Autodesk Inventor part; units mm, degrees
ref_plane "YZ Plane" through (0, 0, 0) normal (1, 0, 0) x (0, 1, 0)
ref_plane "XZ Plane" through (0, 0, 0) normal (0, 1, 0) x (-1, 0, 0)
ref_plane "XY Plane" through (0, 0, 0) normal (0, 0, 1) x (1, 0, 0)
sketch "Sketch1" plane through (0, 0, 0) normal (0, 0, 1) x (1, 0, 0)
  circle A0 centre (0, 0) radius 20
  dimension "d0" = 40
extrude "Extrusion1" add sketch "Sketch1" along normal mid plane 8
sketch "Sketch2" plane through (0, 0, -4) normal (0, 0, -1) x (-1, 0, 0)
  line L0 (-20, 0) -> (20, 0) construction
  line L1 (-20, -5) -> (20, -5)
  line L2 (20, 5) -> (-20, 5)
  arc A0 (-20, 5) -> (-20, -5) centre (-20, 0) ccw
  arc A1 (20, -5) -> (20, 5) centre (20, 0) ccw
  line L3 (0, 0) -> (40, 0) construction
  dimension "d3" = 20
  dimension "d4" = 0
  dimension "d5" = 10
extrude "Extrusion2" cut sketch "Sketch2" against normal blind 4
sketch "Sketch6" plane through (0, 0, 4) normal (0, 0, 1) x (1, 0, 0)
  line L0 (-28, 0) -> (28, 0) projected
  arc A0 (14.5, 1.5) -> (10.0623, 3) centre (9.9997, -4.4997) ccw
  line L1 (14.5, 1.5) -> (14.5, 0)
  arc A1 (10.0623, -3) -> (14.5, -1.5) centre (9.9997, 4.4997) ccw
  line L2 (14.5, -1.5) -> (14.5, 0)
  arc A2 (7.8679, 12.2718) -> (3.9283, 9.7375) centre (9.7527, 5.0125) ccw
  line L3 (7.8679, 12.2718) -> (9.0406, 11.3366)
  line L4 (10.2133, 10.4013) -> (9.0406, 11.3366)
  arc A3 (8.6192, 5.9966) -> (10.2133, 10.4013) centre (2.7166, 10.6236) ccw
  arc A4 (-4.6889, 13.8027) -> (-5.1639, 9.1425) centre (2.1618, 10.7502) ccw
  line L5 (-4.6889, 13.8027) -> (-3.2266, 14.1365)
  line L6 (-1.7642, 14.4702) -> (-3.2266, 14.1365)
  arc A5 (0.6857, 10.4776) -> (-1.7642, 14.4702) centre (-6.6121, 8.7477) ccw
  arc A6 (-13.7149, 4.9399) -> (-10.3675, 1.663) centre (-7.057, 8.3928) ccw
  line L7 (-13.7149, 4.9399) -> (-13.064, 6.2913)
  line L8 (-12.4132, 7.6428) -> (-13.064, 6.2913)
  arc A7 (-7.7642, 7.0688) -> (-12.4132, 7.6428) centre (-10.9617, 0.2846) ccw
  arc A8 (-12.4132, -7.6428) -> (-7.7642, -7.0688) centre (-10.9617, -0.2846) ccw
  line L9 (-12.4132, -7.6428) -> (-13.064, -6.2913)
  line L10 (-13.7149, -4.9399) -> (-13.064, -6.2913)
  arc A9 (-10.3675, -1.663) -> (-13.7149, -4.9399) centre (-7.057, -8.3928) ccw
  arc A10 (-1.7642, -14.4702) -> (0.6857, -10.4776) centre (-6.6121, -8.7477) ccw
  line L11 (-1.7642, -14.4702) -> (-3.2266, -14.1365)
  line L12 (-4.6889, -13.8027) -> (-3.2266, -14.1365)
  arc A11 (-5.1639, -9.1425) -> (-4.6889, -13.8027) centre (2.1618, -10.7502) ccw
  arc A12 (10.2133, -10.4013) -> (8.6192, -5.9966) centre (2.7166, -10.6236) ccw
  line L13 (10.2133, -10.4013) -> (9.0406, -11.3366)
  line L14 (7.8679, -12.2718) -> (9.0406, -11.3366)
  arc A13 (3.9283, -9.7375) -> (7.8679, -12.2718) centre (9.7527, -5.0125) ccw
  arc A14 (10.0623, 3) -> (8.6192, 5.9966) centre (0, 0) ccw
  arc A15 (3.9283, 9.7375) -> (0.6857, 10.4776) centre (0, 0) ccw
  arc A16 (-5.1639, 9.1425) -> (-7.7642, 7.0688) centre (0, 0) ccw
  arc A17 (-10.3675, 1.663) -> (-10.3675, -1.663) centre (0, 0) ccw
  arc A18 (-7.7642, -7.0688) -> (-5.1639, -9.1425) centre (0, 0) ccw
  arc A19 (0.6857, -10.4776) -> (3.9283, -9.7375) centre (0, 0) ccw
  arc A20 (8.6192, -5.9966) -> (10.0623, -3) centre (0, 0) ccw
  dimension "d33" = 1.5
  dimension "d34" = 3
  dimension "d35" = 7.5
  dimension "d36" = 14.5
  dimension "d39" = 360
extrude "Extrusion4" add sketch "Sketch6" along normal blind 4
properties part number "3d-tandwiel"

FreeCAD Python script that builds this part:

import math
import FreeCAD as App
import Part
import Sketcher
from FreeCAD import Vector
Q = App.Units.Quantity

doc = App.newDocument("Part")
params = doc.addObject("Spreadsheet::Sheet", "Params")
for row, (alias, value) in enumerate([
    ("sketch1_diameter", "40 mm"),
    ("pad1_length", "8 mm"),
    ("sketch2_radius", "5 mm"),
    ("pocket1_length", "4 mm"),
    ("sketch3_radius", "7.5 mm"),
    ("sketch3_height", "3 mm"),
    ("sketch3_length", "1.5 mm"),
    ("sketch3_radius2", "10.5 mm"),
    ("pad2_length", "4 mm"),
], start=1):
    params.set(f"A{row}", alias)
    params.set(f"B{row}", "=" + value)
    params.setAlias(f"B{row}", alias)

body = doc.addObject("PartDesign::Body", "Body")

sketch1 = body.newObject("Sketcher::SketchObject", "Sketch")
sketch1.AttachmentSupport = (doc.getObject("XY_Plane"), [""])
sketch1.MapMode = "FlatFace"
sketch1.addGeometry(Part.Circle(Vector(0, 0, 0), Vector(0, 0, 1), 20), False)
sketch1.addConstraint([
    Sketcher.Constraint("Coincident", 0, 3, -1, 1),
    Sketcher.Constraint("Diameter", 0, Q("40 mm")),
])
sketch1.setExpression("Constraints[1]", "Params.sketch1_diameter")
pad1 = body.newObject("PartDesign::Pad", "Pad")
pad1.Profile = sketch1
pad1.setExpression("Length", "Params.pad1_length")
pad1.Midplane = True

sketch2 = body.newObject("Sketcher::SketchObject", "Sketch001")
sketch2.AttachmentSupport = (doc.getObject("XY_Plane"), [""])
sketch2.MapMode = "FlatFace"
sketch2.AttachmentOffset = App.Placement(Vector(0, 0, -4), App.Rotation())
sketch2.addGeometry([
    Part.ArcOfCircle(Part.Circle(Vector(20, 0, 0), Vector(0, 0, 1), 5), math.radians(-90), math.radians(90)),
    Part.LineSegment(Vector(20, -5, 0), Vector(-20, -5, 0)),
    Part.ArcOfCircle(Part.Circle(Vector(-20, 0, 0), Vector(0, 0, 1), 5), math.radians(90), math.radians(270)),
    Part.LineSegment(Vector(-20, 5, 0), Vector(20, 5, 0)),
], False)
sketch2.addConstraint([
    Sketcher.Constraint("Tangent", 0, 1, 1, 1),
    Sketcher.Constraint("Tangent", 1, 2, 2, 2),
    Sketcher.Constraint("Tangent", 2, 1, 3, 1),
    Sketcher.Constraint("Tangent", 3, 2, 0, 2),
    Sketcher.Constraint("Horizontal", 1),
    Sketcher.Constraint("Horizontal", 3),
    Sketcher.Constraint("Symmetric", 0, 3, 2, 3, -1, 1),
    Sketcher.Constraint("Radius", 0, Q("5 mm")),
    Sketcher.Constraint("DistanceX", -1, 1, 0, 3, Q("20 mm")),
])
sketch2.setExpression("Constraints[7]", "Params.sketch2_radius")
pocket1 = body.newObject("PartDesign::Pocket", "Pocket")
pocket1.Profile = sketch2
pocket1.setExpression("Length", "Params.pocket1_length")
pocket1.Reversed = True

sketch3 = body.newObject("Sketcher::SketchObject", "Sketch002")
sketch3.AttachmentSupport = (doc.getObject("XY_Plane"), [""])
sketch3.MapMode = "FlatFace"
sketch3.AttachmentOffset = App.Placement(Vector(0, 0, 4), App.Rotation())
sketch3.addGeometry([
    Part.ArcOfCircle(Part.Circle(Vector(0, 0, 0), Vector(0, 0, 1), 10.5), math.radians(170.89), math.radians(189.11)),
    Part.ArcOfCircle(Part.Circle(Vector(-7.1, -8.4, 0), Vector(0, 0, 1), 7.5), math.radians(116), math.radians(153)),
    Part.LineSegment(Vector(-13.7, -4.9, 0), Vector(-13.1, -6.3, 0)),
    Part.LineSegment(Vector(-13.1, -6.3, 0), Vector(-12.4, -7.6, 0)),
    Part.ArcOfCircle(Part.Circle(Vector(-11, -0.3, 0), Vector(0, 0, 1), 7.5), math.radians(-101), math.radians(-65)),
    Part.ArcOfCircle(Part.Circle(Vector(0, 0, 0), Vector(0, 0, 1), 10.5), math.radians(-137.68), math.radians(-119.46)),
    Part.ArcOfCircle(Part.Circle(Vector(2.2, -10.8, 0), Vector(0, 0, 1), 7.5), math.radians(168), math.radians(204)),
    Part.LineSegment(Vector(-4.7, -13.8, 0), Vector(-3.2, -14.1, 0)),
    Part.LineSegment(Vector(-3.2, -14.1, 0), Vector(-1.8, -14.5, 0)),
    Part.ArcOfCircle(Part.Circle(Vector(-6.6, -8.7, 0), Vector(0, 0, 1), 7.5), math.radians(-50), math.radians(-13)),
    Part.ArcOfCircle(Part.Circle(Vector(0, 0, 0), Vector(0, 0, 1), 10.5), math.radians(-86.26), math.radians(-68.03)),
    Part.ArcOfCircle(Part.Circle(Vector(9.8, -5, 0), Vector(0, 0, 1), 7.5), math.radians(-141), math.radians(-105)),
    Part.LineSegment(Vector(7.9, -12.3, 0), Vector(9, -11.3, 0)),
    Part.LineSegment(Vector(9, -11.3, 0), Vector(10.2, -10.4, 0)),
    Part.ArcOfCircle(Part.Circle(Vector(2.7, -10.6, 0), Vector(0, 0, 1), 7.5), math.radians(2), math.radians(38)),
    Part.ArcOfCircle(Part.Circle(Vector(0, 0, 0), Vector(0, 0, 1), 10.5), math.radians(-34.83), math.radians(-16.6)),
    Part.ArcOfCircle(Part.Circle(Vector(10, 4.5, 0), Vector(0, 0, 1), 7.5), math.radians(-90), math.radians(-53)),
    Part.LineSegment(Vector(14.5, -1.5, 0), Vector(14.5, 1.5, 0)),
    Part.ArcOfCircle(Part.Circle(Vector(10, -4.5, 0), Vector(0, 0, 1), 7.5), math.radians(53), math.radians(90)),
    Part.ArcOfCircle(Part.Circle(Vector(0, 0, 0), Vector(0, 0, 1), 10.5), math.radians(16.6), math.radians(34.83)),
    Part.ArcOfCircle(Part.Circle(Vector(2.7, 10.6, 0), Vector(0, 0, 1), 7.5), math.radians(-38), math.radians(-2)),
    Part.LineSegment(Vector(10.2, 10.4, 0), Vector(9, 11.3, 0)),
    Part.LineSegment(Vector(9, 11.3, 0), Vector(7.9, 12.3, 0)),
    Part.ArcOfCircle(Part.Circle(Vector(9.8, 5, 0), Vector(0, 0, 1), 7.5), math.radians(105), math.radians(141)),
    Part.ArcOfCircle(Part.Circle(Vector(0, 0, 0), Vector(0, 0, 1), 10.5), math.radians(68.03), math.radians(86.26)),
    Part.ArcOfCircle(Part.Circle(Vector(-6.6, 8.7, 0), Vector(0, 0, 1), 7.5), math.radians(13), math.radians(50)),
    Part.LineSegment(Vector(-1.8, 14.5, 0), Vector(-3.2, 14.1, 0)),
    Part.LineSegment(Vector(-3.2, 14.1, 0), Vector(-4.7, 13.8, 0)),
    Part.ArcOfCircle(Part.Circle(Vector(2.2, 10.8, 0), Vector(0, 0, 1), 7.5), math.radians(156), math.radians(192)),
    Part.ArcOfCircle(Part.Circle(Vector(0, 0, 0), Vector(0, 0, 1), 10.5), math.radians(119.46), math.radians(137.68)),
    Part.ArcOfCircle(Part.Circle(Vector(-11, 0.3, 0), Vector(0, 0, 1), 7.5), math.radians(65), math.radians(101)),
    Part.LineSegment(Vector(-12.4, 7.6, 0), Vector(-13.1, 6.3, 0)),
    Part.LineSegment(Vector(-13.1, 6.3, 0), Vector(-13.7, 4.9, 0)),
    Part.ArcOfCircle(Part.Circle(Vector(-7.1, 8.4, 0), Vector(0, 0, 1), 7.5), math.radians(-153), math.radians(-116)),
], False)
sketch3.addConstraint([
    Sketcher.Constraint("Coincident", 0, 2, 1, 1),
    Sketcher.Constraint("Coincident", 1, 2, 2, 1),
    Sketcher.Constraint("Coincident", 2, 2, 3, 1),
    Sketcher.Constraint("Coincident", 3, 2, 4, 1),
    Sketcher.Constraint("Coincident", 4, 2, 5, 1),
    Sketcher.Constraint("Coincident", 5, 2, 6, 1),
    Sketcher.Constraint("Coincident", 6, 2, 7, 1),
    Sketcher.Constraint("Coincident", 7, 2, 8, 1),
    Sketcher.Constraint("Coincident", 8, 2, 9, 1),
    Sketcher.Constraint("Coincident", 9, 2, 10, 1),
    Sketcher.Constraint("Coincident", 10, 2, 11, 1),
    Sketcher.Constraint("Coincident", 11, 2, 12, 1),
    Sketcher.Constraint("Coincident", 12, 2, 13, 1),
    Sketcher.Constraint("Coincident", 13, 2, 14, 1),
    Sketcher.Constraint("Coincident", 14, 2, 15, 1),
    Sketcher.Constraint("Coincident", 15, 2, 16, 1),
    Sketcher.Constraint("Coincident", 16, 2, 17, 1),
    Sketcher.Constraint("Coincident", 17, 2, 18, 1),
    Sketcher.Constraint("Coincident", 18, 2, 19, 1),
    Sketcher.Constraint("Coincident", 19, 2, 20, 1),
    Sketcher.Constraint("Coincident", 20, 2, 21, 1),
    Sketcher.Constraint("Coincident", 21, 2, 22, 1),
    Sketcher.Constraint("Coincident", 22, 2, 23, 1),
    Sketcher.Constraint("Coincident", 23, 2, 24, 1),
    Sketcher.Constraint("Coincident", 24, 2, 25, 1),
    Sketcher.Constraint("Coincident", 25, 2, 26, 1),
    Sketcher.Constraint("Coincident", 26, 2, 27, 1),
    Sketcher.Constraint("Coincident", 27, 2, 28, 1),
    Sketcher.Constraint("Coincident", 28, 2, 29, 1),
    Sketcher.Constraint("Coincident", 29, 2, 30, 1),
    Sketcher.Constraint("Coincident", 30, 2, 31, 1),
    Sketcher.Constraint("Coincident", 31, 2, 32, 1),
    Sketcher.Constraint("Coincident", 32, 2, 33, 1),
    Sketcher.Constraint("Coincident", 33, 2, 0, 1),
    Sketcher.Constraint("Vertical", 17),
    Sketcher.Constraint("Coincident", 0, 3, -1, 1),
    Sketcher.Constraint("Coincident", 5, 3, -1, 1),
    Sketcher.Constraint("Coincident", 10, 3, -1, 1),
    Sketcher.Constraint("Coincident", 15, 3, -1, 1),
    Sketcher.Constraint("Coincident", 19, 3, -1, 1),
    Sketcher.Constraint("Coincident", 24, 3, -1, 1),
    Sketcher.Constraint("Coincident", 29, 3, -1, 1),
    Sketcher.Constraint("Equal", 1, 4),
    Sketcher.Constraint("Equal", 0, 5),
    Sketcher.Constraint("Equal", 4, 6),
    Sketcher.Constraint("Equal", 6, 9),
    Sketcher.Constraint("Equal", 5, 10),
    Sketcher.Constraint("Equal", 9, 11),
    Sketcher.Constraint("Equal", 11, 14),
    Sketcher.Constraint("Equal", 10, 15),
    Sketcher.Constraint("Equal", 14, 16),
    Sketcher.Constraint("Equal", 16, 18),
    Sketcher.Constraint("Equal", 15, 19),
    Sketcher.Constraint("Equal", 18, 20),
    Sketcher.Constraint("Equal", 20, 23),
    Sketcher.Constraint("Equal", 19, 24),
    Sketcher.Constraint("Equal", 23, 25),
    Sketcher.Constraint("Equal", 25, 28),
    Sketcher.Constraint("Equal", 24, 29),
    Sketcher.Constraint("Equal", 28, 30),
    Sketcher.Constraint("Equal", 30, 33),
    Sketcher.Constraint("Symmetric", 16, 3, 18, 3, -1),
    Sketcher.Constraint("Symmetric", 14, 3, 20, 3, -1),
    Sketcher.Constraint("Symmetric", 11, 3, 23, 3, -1),
    Sketcher.Constraint("Symmetric", 9, 3, 25, 3, -1),
    Sketcher.Constraint("Symmetric", 6, 3, 28, 3, -1),
    Sketcher.Constraint("Symmetric", 4, 3, 30, 3, -1),
    Sketcher.Constraint("Symmetric", 1, 3, 33, 3, -1),
    Sketcher.Constraint("Symmetric", 12, 2, 21, 2, -1),
    Sketcher.Constraint("Symmetric", 7, 2, 26, 2, -1),
    Sketcher.Constraint("Symmetric", 2, 2, 31, 2, -1),
    Sketcher.Constraint("Parallel", 2, 3),
    Sketcher.Constraint("Parallel", 7, 8),
    Sketcher.Constraint("Parallel", 12, 13),
    Sketcher.Constraint("Parallel", 21, 22),
    Sketcher.Constraint("Parallel", 26, 27),
    Sketcher.Constraint("Parallel", 31, 32),
    Sketcher.Constraint("Vertical", 13, 2, 20, 2),
    Sketcher.Constraint("Vertical", 8, 2, 25, 2),
    Sketcher.Constraint("Vertical", 3, 2, 30, 2),
    Sketcher.Constraint("Equal", 2, 3),
    Sketcher.Constraint("Equal", 3, 7),
    Sketcher.Constraint("Equal", 7, 8),
    Sketcher.Constraint("Equal", 8, 12),
    Sketcher.Constraint("Equal", 12, 13),
    Sketcher.Constraint("Radius", 1, Q("7.5 mm")),
    Sketcher.Constraint("DistanceY", 17, 1, 17, 2, Q("3 mm")),
    Sketcher.Constraint("DistanceY", 15, 2, -1, 1, Q("3 mm")),
    Sketcher.Constraint("Distance", 2, Q("1.5 mm")),
    Sketcher.Constraint("DistanceX", -1, 1, 16, 2, Q("14.5 mm")),
    Sketcher.Constraint("Radius", 0, Q("10.5 mm")),
    Sketcher.Constraint("DistanceY", 5, 2, 3, 2, Q("1.4997 mm")),
    Sketcher.Constraint("DistanceY", 1, 2, -1, 1, Q("4.94 mm")),
    Sketcher.Constraint("DistanceY", 1, 3, 3, 2, Q("0.75 mm")),
    Sketcher.Constraint("DistanceY", 6, 2, 1, 3, Q("5.41 mm")),
    Sketcher.Constraint("DistanceY", 8, 2, 6, 3, Q("3.72 mm")),
    Sketcher.Constraint("DistanceY", 9, 2, 10, 2, Q("0.74 mm")),
    Sketcher.Constraint("DistanceY", 12, 2, 14, 2, Q("5.34 mm")),
    Sketcher.Constraint("DistanceX", 1, 3, -1, 1, Q("7.057 mm")),
    Sketcher.Constraint("DistanceX", 9, 3, -1, 1, Q("6.612 mm")),
    Sketcher.Constraint("DistanceY", 0, 2, -1, 1, Q("1.663 mm")),
    Sketcher.Constraint("DistanceX", 6, 2, -1, 1, Q("4.689 mm")),
    Sketcher.Constraint("DistanceX", -1, 1, 11, 2, Q("7.868 mm")),
    Sketcher.Constraint("DistanceY", 9, 3, 4, 3, Q("8.463 mm")),
    Sketcher.Constraint("DistanceX", 6, 3, 11, 3, Q("7.591 mm")),
    Sketcher.Constraint("DistanceX", 14, 3, 11, 3, Q("7.036 mm")),
])
sketch3.setExpression("Constraints[85]", "Params.sketch3_radius")
sketch3.setExpression("Constraints[86]", "Params.sketch3_height")
sketch3.setExpression("Constraints[88]", "Params.sketch3_length")
sketch3.setExpression("Constraints[90]", "Params.sketch3_radius2")
pad2 = body.newObject("PartDesign::Pad", "Pad001")
pad2.Profile = sketch3
pad2.setExpression("Length", "Params.pad2_length")

doc.recompute()
